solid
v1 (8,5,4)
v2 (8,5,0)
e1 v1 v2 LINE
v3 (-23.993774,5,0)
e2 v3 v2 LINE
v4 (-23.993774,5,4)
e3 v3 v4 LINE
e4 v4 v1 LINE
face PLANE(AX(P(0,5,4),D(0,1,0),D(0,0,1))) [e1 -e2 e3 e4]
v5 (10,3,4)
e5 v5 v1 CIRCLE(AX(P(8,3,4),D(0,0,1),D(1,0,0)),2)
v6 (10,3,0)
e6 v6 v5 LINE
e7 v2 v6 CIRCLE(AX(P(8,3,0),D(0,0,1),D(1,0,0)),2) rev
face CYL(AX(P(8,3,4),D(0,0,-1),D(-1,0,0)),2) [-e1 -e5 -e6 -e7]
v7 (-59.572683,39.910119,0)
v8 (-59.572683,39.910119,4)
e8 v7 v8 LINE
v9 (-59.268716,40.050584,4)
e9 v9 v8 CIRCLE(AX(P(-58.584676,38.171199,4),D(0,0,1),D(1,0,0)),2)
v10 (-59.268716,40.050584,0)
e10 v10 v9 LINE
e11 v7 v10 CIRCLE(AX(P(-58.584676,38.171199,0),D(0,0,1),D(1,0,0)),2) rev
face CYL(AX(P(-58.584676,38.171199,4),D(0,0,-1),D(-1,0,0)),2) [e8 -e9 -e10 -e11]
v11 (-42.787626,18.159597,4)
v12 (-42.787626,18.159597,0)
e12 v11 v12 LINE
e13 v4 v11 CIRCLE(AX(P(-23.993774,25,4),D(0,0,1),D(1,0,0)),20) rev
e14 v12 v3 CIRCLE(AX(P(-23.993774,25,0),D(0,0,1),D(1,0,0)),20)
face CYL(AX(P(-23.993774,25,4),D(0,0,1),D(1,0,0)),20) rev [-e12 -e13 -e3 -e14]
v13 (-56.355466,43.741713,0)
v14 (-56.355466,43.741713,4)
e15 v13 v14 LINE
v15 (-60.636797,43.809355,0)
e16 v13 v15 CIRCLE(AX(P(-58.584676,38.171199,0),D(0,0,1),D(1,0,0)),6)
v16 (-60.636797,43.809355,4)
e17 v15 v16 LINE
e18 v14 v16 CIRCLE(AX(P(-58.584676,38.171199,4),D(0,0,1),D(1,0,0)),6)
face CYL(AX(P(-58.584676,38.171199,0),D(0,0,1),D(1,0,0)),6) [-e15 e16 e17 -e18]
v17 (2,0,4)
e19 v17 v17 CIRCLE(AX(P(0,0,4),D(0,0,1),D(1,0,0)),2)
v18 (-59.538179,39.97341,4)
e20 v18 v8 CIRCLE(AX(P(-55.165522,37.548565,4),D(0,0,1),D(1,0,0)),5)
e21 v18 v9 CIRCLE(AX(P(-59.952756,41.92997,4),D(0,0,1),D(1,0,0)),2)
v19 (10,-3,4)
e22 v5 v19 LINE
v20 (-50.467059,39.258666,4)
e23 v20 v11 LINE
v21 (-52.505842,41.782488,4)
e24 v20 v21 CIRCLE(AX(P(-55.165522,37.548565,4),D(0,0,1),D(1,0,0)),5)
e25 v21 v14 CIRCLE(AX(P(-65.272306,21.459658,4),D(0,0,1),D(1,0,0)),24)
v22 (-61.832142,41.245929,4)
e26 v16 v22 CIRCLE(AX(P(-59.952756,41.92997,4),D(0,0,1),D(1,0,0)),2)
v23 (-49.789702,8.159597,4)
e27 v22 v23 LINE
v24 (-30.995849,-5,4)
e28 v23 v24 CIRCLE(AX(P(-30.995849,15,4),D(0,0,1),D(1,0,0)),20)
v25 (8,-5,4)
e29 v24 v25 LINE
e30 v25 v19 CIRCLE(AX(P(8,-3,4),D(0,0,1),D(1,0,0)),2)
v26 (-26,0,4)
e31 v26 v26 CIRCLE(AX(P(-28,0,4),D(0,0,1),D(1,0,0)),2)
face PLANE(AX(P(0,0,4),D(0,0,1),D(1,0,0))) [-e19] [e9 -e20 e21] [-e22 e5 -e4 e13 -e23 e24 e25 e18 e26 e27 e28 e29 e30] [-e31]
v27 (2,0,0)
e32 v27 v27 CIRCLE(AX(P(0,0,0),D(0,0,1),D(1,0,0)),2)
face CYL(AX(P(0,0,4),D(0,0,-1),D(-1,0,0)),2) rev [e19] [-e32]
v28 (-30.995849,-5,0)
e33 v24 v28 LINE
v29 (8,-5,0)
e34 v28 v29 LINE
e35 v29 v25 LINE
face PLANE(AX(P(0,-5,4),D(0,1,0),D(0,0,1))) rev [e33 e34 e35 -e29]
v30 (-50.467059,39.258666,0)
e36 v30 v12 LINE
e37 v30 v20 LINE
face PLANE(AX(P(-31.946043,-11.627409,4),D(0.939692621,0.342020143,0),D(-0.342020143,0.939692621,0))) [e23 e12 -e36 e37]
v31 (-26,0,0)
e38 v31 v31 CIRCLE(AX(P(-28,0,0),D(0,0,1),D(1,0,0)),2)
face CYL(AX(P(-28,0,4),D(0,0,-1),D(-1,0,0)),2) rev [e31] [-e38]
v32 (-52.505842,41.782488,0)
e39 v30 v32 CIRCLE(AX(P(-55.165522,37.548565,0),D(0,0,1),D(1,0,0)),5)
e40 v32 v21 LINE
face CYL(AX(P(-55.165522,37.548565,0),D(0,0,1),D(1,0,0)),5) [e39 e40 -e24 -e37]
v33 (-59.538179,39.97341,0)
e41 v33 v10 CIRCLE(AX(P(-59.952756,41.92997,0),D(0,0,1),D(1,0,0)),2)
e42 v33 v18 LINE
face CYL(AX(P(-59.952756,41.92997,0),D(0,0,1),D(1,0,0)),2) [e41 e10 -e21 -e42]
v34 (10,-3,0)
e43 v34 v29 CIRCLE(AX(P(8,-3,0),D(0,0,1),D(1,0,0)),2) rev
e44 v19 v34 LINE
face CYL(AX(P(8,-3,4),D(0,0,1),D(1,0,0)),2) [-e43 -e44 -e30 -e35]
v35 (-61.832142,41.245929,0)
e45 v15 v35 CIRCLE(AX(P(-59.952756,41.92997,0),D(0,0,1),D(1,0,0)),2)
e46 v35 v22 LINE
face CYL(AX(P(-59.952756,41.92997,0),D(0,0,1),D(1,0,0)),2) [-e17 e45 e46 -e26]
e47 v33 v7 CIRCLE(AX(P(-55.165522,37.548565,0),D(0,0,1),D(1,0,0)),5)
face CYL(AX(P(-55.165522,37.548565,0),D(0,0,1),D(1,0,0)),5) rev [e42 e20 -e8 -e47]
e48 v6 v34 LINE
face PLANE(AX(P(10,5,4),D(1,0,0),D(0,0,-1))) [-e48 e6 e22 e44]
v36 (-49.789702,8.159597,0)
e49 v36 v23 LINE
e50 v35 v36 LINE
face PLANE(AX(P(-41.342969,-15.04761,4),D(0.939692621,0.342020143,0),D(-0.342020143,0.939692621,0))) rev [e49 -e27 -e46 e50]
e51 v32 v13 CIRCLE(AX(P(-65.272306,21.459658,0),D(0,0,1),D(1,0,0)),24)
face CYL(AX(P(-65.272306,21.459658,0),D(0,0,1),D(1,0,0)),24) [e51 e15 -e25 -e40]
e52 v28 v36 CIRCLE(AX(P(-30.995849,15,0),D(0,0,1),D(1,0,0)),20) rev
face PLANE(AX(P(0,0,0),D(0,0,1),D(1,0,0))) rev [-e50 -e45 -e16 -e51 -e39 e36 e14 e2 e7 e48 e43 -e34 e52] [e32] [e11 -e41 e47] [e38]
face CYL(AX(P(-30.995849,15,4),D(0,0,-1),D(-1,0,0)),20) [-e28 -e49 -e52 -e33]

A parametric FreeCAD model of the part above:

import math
import FreeCAD as App
import Part
import Sketcher
from FreeCAD import Vector
Q = App.Units.Quantity


def edges_at(feature, points):
    """Names of the edges that pass closest to the given points."""
    edges = feature.Shape.Edges
    near = lambda p: min(range(len(edges)), key=lambda i: edges[i].distToShape(Part.Vertex(*p))[0])
    return sorted({f"Edge{near(p) + 1}" for p in points})

doc = App.newDocument("Part")
params = doc.addObject("Spreadsheet::Sheet", "Params")
for row, (alias, value) in enumerate([
    ("sketch1_diameter", "4 mm"),
    ("sketch1_width", "55 mm"),
    ("sketch1_height", "10 mm"),
    ("sketch1_length", "35 mm"),
    ("pad1_length", "4 mm"),
    ("fillet_radius", "20 mm"),
    ("fillet2_radius", "20 mm"),
    ("fillet3_radius", "2 mm"),
    ("sketch2_radius", "6 mm"),
    ("sketch2_radius2", "20 mm"),
    ("sketch2_radius3", "5 mm"),
    ("pad2_length", "4 mm"),
], start=1):
    params.set(f"A{row}", alias)
    params.set(f"B{row}", "=" + value)
    params.setAlias(f"B{row}", alias)

body = doc.addObject("PartDesign::Body", "Body")

sketch1 = body.newObject("Sketcher::SketchObject", "Sketch")
sketch1.AttachmentSupport = (doc.getObject("XY_Plane"), [""])
sketch1.MapMode = "FlatFace"
sketch1.addGeometry(Part.LineSegment(Vector(-50, 37.9, 0), Vector(-61.8, 41.3, 0)), False)
sketch1.addGeometry(Part.LineSegment(Vector(-61.8, 41.3, 0), Vector(-45, -5, 0)), False)
sketch1.addGeometry(Part.LineSegment(Vector(-45, -5, 0), Vector(10, -5, 0)), False)
sketch1.addGeometry(Part.LineSegment(Vector(10, -5, 0), Vector(10, 5, 0)), False)
sketch1.addGeometry(Part.LineSegment(Vector(10, 5, 0), Vector(-38, 5, 0)), False)
sketch1.addGeometry(Part.LineSegment(Vector(-38, 5, 0), Vector(-50, 37.9, 0)), False)
sketch1.addGeometry(Part.Circle(Vector(-28, 0, 0), Vector(0, 0, 1), 2), False)
sketch1.addGeometry(Part.Circle(Vector(0, 0, 0), Vector(0, 0, 1), 2), False)
sketch1.addConstraint(Sketcher.Constraint("Coincident", 0, 2, 1, 1))
sketch1.addConstraint(Sketcher.Constraint("Coincident", 1, 2, 2, 1))
sketch1.addConstraint(Sketcher.Constraint("Coincident", 2, 2, 3, 1))
sketch1.addConstraint(Sketcher.Constraint("Coincident", 3, 2, 4, 1))
sketch1.addConstraint(Sketcher.Constraint("Coincident", 4, 2, 5, 1))
sketch1.addConstraint(Sketcher.Constraint("Coincident", 5, 2, 0, 1))
sketch1.addConstraint(Sketcher.Constraint("Horizontal", 2))
sketch1.addConstraint(Sketcher.Constraint("Vertical", 3))
sketch1.addConstraint(Sketcher.Constraint("Horizontal", 4))
sketch1.addConstraint(Sketcher.Constraint("Coincident", 7, 3, -1, 1))
sketch1.addConstraint(Sketcher.Constraint("Equal", 6, 7))
sketch1.addConstraint(Sketcher.Constraint("PointOnObject", 6, 3, -1))
sketch1.addConstraint(Sketcher.Constraint("Parallel", 1, 5))
sketch1.addConstraint(Sketcher.Constraint("Diameter", 6, 4.0))
sketch1.addConstraint(Sketcher.Constraint("DistanceX", 2, 1, 2, 2, 55.0))
sketch1.addConstraint(Sketcher.Constraint("DistanceY", 3, 1, 3, 2, 10.0))
sketch1.addConstraint(Sketcher.Constraint("Angle", 1, Q("-70 deg")))
sketch1.addConstraint(Sketcher.Constraint("Distance", 5, 35.0))
sketch1.addConstraint(Sketcher.Constraint("DistanceX", 6, 3, -1, 1, 28.0))
sketch1.addConstraint(Sketcher.Constraint("DistanceX", 1, 2, -1, 1, 45.0))
sketch1.addConstraint(Sketcher.Constraint("DistanceY", 1, 2, -1, 1, 5.0))
sketch1.addConstraint(Sketcher.Constraint("DistanceX", 4, 2, 4, 1, 47.997925))
sketch1.addConstraint(Sketcher.Constraint("DistanceX", 0, 2, -1, 1, 61.844641))
sketch1.setExpression("Constraints[13]", "Params.sketch1_diameter")
sketch1.setExpression("Constraints[14]", "Params.sketch1_width")
sketch1.setExpression("Constraints[15]", "Params.sketch1_height")
sketch1.setExpression("Constraints[17]", "Params.sketch1_length")
pad1 = body.newObject("PartDesign::Pad", "Pad")
pad1.Profile = sketch1
pad1.setExpression("Length", "Params.pad1_length")
doc.recompute()

fillet = body.newObject("PartDesign::Fillet", "Fillet")
fillet.Base = (pad1, edges_at(pad1, [(-37.998, 5, 2), (-45, -5, 2)]))
fillet.setExpression("Radius", "Params.fillet_radius")
doc.recompute()

fillet2 = body.newObject("PartDesign::Fillet", "Fillet001")
fillet2.Base = (fillet, edges_at(fillet, [(-49.969, 37.889, 2)]))
fillet2.setExpression("Radius", "Params.fillet2_radius")
doc.recompute()

fillet3 = body.newObject("PartDesign::Fillet", "Fillet002")
fillet3.Base = (fillet2, edges_at(fillet2, [(-61.845, 41.28, 2), (10, -5, 2), (10, 5, 2)]))
fillet3.setExpression("Radius", "Params.fillet3_radius")

sketch2 = body.newObject("Sketcher::SketchObject", "Sketch001")
sketch2.AttachmentSupport = (doc.getObject("XY_Plane"), [""])
sketch2.MapMode = "FlatFace"
sketch2.AttachmentOffset = App.Placement(Vector(0, 0, 4), App.Rotation())
sketch2.addGeometry(Part.ArcOfCircle(Part.Circle(Vector(-58.58, 38.17, 0), Vector(0, 0, 1), 6), math.radians(68), math.radians(110)), False)
sketch2.addGeometry(Part.ArcOfCircle(Part.Circle(Vector(-59.95, 41.93, 0), Vector(0, 0, 1), 2), math.radians(110), math.radians(200)), False)
sketch2.addGeometry(Part.LineSegment(Vector(-61.83, 41.25, 0), Vector(-60.46, 37.49, 0)), False)
sketch2.addGeometry(Part.ArcOfCircle(Part.Circle(Vector(-58.58, 38.17, 0), Vector(0, 0, 1), 2), math.radians(120), math.radians(200)), False)
sketch2.addGeometry(Part.ArcOfCircle(Part.Circle(Vector(-55.17, 37.55, 0), Vector(0, 0, 1), 5), math.radians(150.99), math.radians(151.82)), False)
sketch2.addGeometry(Part.ArcOfCircle(Part.Circle(Vector(-59.95, 41.93, 0), Vector(0, 0, 1), 2), math.radians(-78.04), math.radians(-70)), False)
sketch2.addGeometry(Part.ArcOfCircle(Part.Circle(Vector(-58.58, 38.17, 0), Vector(0, 0, 1), 2), math.radians(68), math.radians(110)), False)
sketch2.addGeometry(Part.ArcOfCircle(Part.Circle(Vector(-65.27, 21.46, 0), Vector(0, 0, 1), 20), math.radians(20), math.radians(68)), False)
sketch2.addGeometry(Part.LineSegment(Vector(-46.48, 28.3, 0), Vector(-50.47, 39.26, 0)), False)
sketch2.addGeometry(Part.ArcOfCircle(Part.Circle(Vector(-55.17, 37.55, 0), Vector(0, 0, 1), 5), math.radians(20), math.radians(58)), False)
sketch2.addGeometry(Part.ArcOfCircle(Part.Circle(Vector(-65.27, 21.46, 0), Vector(0, 0, 1), 24), math.radians(57.86), math.radians(68.19)), False)
sketch2.addConstraint(Sketcher.Constraint("Tangent", 0, 2, 1, 1))
sketch2.addConstraint(Sketcher.Constraint("Tangent", 1, 2, 2, 1))
sketch2.addConstraint(Sketcher.Constraint("Tangent", 2, 2, 3, 2))
sketch2.addConstraint(Sketcher.Constraint("Coincident", 3, 1, 4, 2))
sketch2.addConstraint(Sketcher.Constraint("Coincident", 4, 1, 5, 1))
sketch2.addConstraint(Sketcher.Constraint("Tangent", 5, 2, 6, 2))
sketch2.addConstraint(Sketcher.Constraint("Tangent", 6, 1, 7, 2))
sketch2.addConstraint(Sketcher.Constraint("Tangent", 7, 1, 8, 1))
sketch2.addConstraint(Sketcher.Constraint("Tangent", 8, 2, 9, 1))
sketch2.addConstraint(Sketcher.Constraint("Tangent", 9, 2, 10, 1))
sketch2.addConstraint(Sketcher.Constraint("Tangent", 10, 2, 0, 1))
sketch2.addConstraint(Sketcher.Constraint("Coincident", 3, 3, 0, 3))
sketch2.addConstraint(Sketcher.Constraint("Coincident", 5, 3, 1, 3))
sketch2.addConstraint(Sketcher.Constraint("Coincident", 6, 3, 0, 3))
sketch2.addConstraint(Sketcher.Constraint("Coincident", 10, 3, 7, 3))
sketch2.addConstraint(Sketcher.Constraint("Equal", 1, 3))
sketch2.addConstraint(Sketcher.Constraint("Equal", 3, 5))
sketch2.addConstraint(Sketcher.Constraint("Equal", 5, 6))
sketch2.addConstraint(Sketcher.Constraint("Parallel", 2, 8))
sketch2.addConstraint(Sketcher.Constraint("Radius", 0, 6.0))
sketch2.addConstraint(Sketcher.Constraint("Radius", 7, 20.0))
sketch2.addConstraint(Sketcher.Constraint("Radius", 9, 5.0))
sketch2.addConstraint(Sketcher.Constraint("Angle", 2, Q("-70 deg")))
sketch2.addConstraint(Sketcher.Constraint("Radius", 4, 5.00001))
sketch2.addConstraint(Sketcher.Constraint("DistanceY", -1, 1, 0, 3, 38.171199))
sketch2.addConstraint(Sketcher.Constraint("DistanceY", 7, 1, 4, 3, 9.248499))
sketch2.addConstraint(Sketcher.Constraint("DistanceY", -1, 1, 4, 3, 37.54856))
sketch2.addConstraint(Sketcher.Constraint("DistanceX", 1, 2, -1, 1, 61.832142))
sketch2.addConstraint(Sketcher.Constraint("DistanceY", -1, 1, 3, 1, 39.910119))
sketch2.setExpression("Constraints[19]", "Params.sketch2_radius")
sketch2.setExpression("Constraints[20]", "Params.sketch2_radius2")
sketch2.setExpression("Constraints[21]", "Params.sketch2_radius3")
pad2 = body.newObject("PartDesign::Pad", "Pad001")
pad2.Profile = sketch2
pad2.setExpression("Length", "Params.pad2_length")
pad2.Reversed = True

doc.recompute()
